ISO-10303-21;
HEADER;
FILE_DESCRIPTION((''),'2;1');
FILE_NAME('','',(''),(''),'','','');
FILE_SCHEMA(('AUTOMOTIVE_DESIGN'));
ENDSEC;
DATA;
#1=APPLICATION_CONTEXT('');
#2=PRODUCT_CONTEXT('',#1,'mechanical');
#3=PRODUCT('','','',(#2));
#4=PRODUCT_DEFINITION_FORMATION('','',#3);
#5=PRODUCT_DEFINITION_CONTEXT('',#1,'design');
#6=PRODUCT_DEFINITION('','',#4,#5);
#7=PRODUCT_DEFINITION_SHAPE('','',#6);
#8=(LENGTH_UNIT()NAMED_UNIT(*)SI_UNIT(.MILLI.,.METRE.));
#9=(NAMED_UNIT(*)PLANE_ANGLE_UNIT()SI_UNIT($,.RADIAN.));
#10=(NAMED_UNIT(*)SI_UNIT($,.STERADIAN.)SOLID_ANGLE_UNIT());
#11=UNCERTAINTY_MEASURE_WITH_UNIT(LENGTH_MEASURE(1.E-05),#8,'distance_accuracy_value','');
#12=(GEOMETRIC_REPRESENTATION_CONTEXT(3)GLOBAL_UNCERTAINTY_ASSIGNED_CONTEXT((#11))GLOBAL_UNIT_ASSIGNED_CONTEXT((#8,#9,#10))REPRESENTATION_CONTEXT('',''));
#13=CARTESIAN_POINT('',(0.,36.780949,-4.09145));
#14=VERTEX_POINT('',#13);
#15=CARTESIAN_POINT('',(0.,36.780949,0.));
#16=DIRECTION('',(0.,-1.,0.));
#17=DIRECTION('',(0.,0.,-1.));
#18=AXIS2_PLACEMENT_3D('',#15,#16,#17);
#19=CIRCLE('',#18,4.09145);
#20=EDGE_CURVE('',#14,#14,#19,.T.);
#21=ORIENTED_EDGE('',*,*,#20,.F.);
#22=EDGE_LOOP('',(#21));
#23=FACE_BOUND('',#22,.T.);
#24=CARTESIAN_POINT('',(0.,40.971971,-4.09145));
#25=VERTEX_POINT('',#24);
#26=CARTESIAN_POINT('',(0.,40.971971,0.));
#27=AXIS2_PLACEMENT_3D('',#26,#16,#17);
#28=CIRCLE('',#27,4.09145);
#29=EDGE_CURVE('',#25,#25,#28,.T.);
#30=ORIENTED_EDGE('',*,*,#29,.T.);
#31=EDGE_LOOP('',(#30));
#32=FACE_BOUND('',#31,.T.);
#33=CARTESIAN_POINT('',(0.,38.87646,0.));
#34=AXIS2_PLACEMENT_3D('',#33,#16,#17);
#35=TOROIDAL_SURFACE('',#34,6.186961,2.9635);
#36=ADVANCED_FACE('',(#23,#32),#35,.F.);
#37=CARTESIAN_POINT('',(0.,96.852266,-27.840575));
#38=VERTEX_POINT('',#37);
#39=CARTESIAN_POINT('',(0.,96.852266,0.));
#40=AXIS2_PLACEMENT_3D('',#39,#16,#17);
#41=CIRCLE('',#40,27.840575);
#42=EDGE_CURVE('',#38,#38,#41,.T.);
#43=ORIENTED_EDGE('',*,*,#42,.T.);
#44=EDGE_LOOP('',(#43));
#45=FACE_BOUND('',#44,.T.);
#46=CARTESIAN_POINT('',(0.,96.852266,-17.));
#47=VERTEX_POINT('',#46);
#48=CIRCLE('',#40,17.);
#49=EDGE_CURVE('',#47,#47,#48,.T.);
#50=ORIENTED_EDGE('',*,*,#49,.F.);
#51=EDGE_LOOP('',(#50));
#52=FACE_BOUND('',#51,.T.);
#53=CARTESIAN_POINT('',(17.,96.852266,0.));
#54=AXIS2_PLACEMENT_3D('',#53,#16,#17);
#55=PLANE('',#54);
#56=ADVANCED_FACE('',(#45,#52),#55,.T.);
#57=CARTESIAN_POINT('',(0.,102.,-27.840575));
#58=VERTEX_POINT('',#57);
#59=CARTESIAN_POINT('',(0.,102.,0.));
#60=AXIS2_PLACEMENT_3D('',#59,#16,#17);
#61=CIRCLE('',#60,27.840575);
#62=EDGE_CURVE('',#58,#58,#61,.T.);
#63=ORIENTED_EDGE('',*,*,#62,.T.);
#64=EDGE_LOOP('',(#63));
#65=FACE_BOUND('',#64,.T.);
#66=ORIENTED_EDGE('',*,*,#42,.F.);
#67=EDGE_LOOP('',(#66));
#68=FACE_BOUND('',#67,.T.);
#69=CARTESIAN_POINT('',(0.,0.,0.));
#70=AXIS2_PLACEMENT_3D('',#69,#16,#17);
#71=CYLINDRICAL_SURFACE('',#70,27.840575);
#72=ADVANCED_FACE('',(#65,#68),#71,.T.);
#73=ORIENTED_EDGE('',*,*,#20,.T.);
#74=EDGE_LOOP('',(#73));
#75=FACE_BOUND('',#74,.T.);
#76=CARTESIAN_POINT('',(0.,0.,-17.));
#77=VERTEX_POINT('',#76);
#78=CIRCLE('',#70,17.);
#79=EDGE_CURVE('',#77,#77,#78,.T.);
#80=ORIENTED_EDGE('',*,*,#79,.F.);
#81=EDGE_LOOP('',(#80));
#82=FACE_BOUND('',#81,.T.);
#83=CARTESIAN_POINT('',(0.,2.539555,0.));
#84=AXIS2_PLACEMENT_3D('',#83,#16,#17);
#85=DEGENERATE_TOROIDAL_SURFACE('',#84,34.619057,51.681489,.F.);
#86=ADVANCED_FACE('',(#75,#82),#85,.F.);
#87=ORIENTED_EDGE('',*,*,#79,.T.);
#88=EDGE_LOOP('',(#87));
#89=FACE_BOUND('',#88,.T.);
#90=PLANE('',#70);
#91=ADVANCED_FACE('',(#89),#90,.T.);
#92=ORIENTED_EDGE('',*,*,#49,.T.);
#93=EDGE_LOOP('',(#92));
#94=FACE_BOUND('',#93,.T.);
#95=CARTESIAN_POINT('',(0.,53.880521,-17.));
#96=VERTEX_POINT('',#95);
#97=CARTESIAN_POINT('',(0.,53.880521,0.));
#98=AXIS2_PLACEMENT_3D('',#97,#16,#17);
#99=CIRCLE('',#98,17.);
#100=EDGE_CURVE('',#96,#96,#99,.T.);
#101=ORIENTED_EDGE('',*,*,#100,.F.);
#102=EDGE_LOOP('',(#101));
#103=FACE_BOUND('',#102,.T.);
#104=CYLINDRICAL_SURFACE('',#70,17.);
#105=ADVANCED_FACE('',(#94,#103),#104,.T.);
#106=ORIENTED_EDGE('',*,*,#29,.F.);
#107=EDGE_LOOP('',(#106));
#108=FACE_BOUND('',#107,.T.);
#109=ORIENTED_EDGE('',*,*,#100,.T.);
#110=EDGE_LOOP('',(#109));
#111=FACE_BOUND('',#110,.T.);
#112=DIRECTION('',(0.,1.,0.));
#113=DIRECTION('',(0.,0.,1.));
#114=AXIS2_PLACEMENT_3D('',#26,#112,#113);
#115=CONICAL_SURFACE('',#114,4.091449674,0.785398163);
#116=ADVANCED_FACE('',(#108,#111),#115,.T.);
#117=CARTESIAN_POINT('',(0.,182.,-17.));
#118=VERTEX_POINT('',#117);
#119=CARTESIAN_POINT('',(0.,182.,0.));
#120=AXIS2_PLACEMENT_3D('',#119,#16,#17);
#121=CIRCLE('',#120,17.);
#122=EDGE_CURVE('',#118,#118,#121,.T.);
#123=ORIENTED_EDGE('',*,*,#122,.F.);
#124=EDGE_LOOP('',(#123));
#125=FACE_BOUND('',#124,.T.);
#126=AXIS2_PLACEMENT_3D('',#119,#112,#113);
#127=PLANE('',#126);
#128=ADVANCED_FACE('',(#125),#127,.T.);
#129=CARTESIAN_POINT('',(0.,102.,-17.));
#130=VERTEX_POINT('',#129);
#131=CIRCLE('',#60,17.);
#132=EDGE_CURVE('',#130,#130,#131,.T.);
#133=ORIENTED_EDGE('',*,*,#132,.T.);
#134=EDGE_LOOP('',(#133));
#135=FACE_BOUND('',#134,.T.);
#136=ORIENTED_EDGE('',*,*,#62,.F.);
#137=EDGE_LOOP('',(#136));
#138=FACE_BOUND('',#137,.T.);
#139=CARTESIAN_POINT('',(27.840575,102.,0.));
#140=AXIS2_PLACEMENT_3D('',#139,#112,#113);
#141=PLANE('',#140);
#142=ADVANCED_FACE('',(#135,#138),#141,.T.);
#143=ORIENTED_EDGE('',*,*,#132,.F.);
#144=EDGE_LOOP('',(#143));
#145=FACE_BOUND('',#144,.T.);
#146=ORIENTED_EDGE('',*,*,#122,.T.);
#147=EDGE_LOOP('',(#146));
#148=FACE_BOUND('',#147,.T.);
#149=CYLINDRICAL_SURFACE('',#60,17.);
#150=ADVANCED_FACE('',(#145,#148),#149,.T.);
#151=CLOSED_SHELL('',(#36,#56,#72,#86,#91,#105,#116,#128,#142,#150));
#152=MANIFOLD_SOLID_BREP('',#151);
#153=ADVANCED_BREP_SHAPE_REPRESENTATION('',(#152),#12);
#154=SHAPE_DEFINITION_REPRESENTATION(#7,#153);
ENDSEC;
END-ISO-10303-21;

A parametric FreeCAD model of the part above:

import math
import FreeCAD as App
import Part
import Sketcher
from FreeCAD import Vector
Q = App.Units.Quantity


def add_polygon(sketch, points):
    """Adds a closed chain of lines whose ends are joined by coincident constraints."""
    first, n = sketch.GeometryCount, len(points)
    for a, b in zip(points, points[1:] + points[:1]):
        sketch.addGeometry(Part.LineSegment(App.Vector(*a, 0), App.Vector(*b, 0)), False)
    for i in range(n):
        sketch.addConstraint(Sketcher.Constraint("Coincident", first + i, 2, first + (i + 1) % n, 1))

doc = App.newDocument("Part")
body = doc.addObject("PartDesign::Body", "Body")

# Sketch on XY plane
sketch1 = doc.addObject("Sketcher::SketchObject", "Sketch")
body.addObject(sketch1)
sketch1.AttachmentSupport = (doc.XY_Plane, [""])
sketch1.MapMode = "FlatFace"
sketch1.addGeometry([
    Part.LineSegment(Vector(0, 0, 0), Vector(17, 0, 0)),  # 0
    Part.ArcOfCircle(Part.Circle(Vector(-34.6, 2.5, 0), Vector(0, 0, 1), 51.7), math.radians(-3), math.radians(41)),  # 1
    Part.ArcOfCircle(Part.Circle(Vector(6.2, 38.9, 0), Vector(0, 0, 1), 3), math.radians(135), math.radians(225)),  # 2
    Part.LineSegment(Vector(4.1, 41, 0), Vector(17, 53.9, 0)),  # 3
    Part.LineSegment(Vector(17, 53.9, 0), Vector(17, 96.9, 0)),  # 4
    Part.LineSegment(Vector(17, 96.9, 0), Vector(27.8, 96.9, 0)),  # 5
    Part.LineSegment(Vector(27.8, 96.9, 0), Vector(27.8, 102, 0)),  # 6
    Part.LineSegment(Vector(27.8, 102, 0), Vector(0, 102, 0)),  # 7
    Part.LineSegment(Vector(0, 102, 0), Vector(0, 0, 0)),  # 8
], False)
sketch1.addConstraint([
    Sketcher.Constraint("Coincident", 0, 2, 1, 1),
    Sketcher.Constraint("Coincident", 1, 2, 2, 2),
    Sketcher.Constraint("Tangent", 2, 1, 3, 1),
    Sketcher.Constraint("Coincident", 3, 2, 4, 1),
    Sketcher.Constraint("Coincident", 4, 2, 5, 1),
    Sketcher.Constraint("Coincident", 5, 2, 6, 1),
    Sketcher.Constraint("Coincident", 6, 2, 7, 1),
    Sketcher.Constraint("Coincident", 7, 2, 8, 1),
    Sketcher.Constraint("Coincident", 8, 2, 0, 1),
    Sketcher.Constraint("Horizontal", 0),
    Sketcher.Constraint("Vertical", 4),
    Sketcher.Constraint("Horizontal", 5),
    Sketcher.Constraint("Vertical", 6),
    Sketcher.Constraint("Horizontal", 7),
    Sketcher.Constraint("Vertical", 8),
    Sketcher.Constraint("Coincident", 8, 2, -1, 1),
    Sketcher.Constraint("Vertical", 1, 2, 2, 1),
    Sketcher.Constraint("Vertical", 0, 2, 3, 2),
    Sketcher.Constraint("DistanceX", 0, 1, 0, 2, Q("17 mm")),
    Sketcher.Constraint("DistanceY", 8, 2, 8, 1, Q("102 mm")),
    Sketcher.Constraint("Angle", 3, Q("45 deg")),
    Sketcher.Constraint("Radius", 2, Q("2.9635 mm")),
    Sketcher.Constraint("Radius", 1, Q("51.681489 mm")),
    Sketcher.Constraint("DistanceX", 5, 1, 5, 2, Q("10.840575 mm")),
    Sketcher.Constraint("DistanceY", 4, 1, 4, 2, Q("42.971745 mm")),
    Sketcher.Constraint("DistanceY", 6, 1, 6, 2, Q("5.147734 mm")),
    Sketcher.Constraint("DistanceX", -1, 1, 2, 3, Q("6.186961 mm")),
])
revolution = doc.addObject("PartDesign::Revolution", "Revolution")
body.addObject(revolution)
revolution.Profile = sketch1
revolution.ReferenceAxis = (sketch1, ["V_Axis"])
revolution.Angle = 360

# Sketch on XY plane
sketch2 = doc.addObject("Sketcher::SketchObject", "Sketch001")
body.addObject(sketch2)
sketch2.AttachmentSupport = (doc.XY_Plane, [""])
sketch2.MapMode = "FlatFace"
add_polygon(sketch2, [(0, 182), (0, 102), (17, 102), (17, 182)])  # lines 0-3
sketch2.addConstraint([
    Sketcher.Constraint("Vertical", 0),
    Sketcher.Constraint("Horizontal", 1),
    Sketcher.Constraint("Vertical", 2),
    Sketcher.Constraint("Horizontal", 3),
    Sketcher.Constraint("PointOnObject", 0, 2, -2),
    Sketcher.Constraint("DistanceX", 1, 1, 1, 2, Q("17 mm")),
    Sketcher.Constraint("DistanceY", 0, 2, 0, 1, Q("80 mm")),
    Sketcher.Constraint("DistanceY", -1, 1, 0, 2, Q("102 mm")),
])
revolution2 = doc.addObject("PartDesign::Revolution", "Revolution001")
body.addObject(revolution2)
revolution2.Profile = sketch2
revolution2.ReferenceAxis = (sketch2, ["V_Axis"])
revolution2.Angle = 360

doc.recompute()
